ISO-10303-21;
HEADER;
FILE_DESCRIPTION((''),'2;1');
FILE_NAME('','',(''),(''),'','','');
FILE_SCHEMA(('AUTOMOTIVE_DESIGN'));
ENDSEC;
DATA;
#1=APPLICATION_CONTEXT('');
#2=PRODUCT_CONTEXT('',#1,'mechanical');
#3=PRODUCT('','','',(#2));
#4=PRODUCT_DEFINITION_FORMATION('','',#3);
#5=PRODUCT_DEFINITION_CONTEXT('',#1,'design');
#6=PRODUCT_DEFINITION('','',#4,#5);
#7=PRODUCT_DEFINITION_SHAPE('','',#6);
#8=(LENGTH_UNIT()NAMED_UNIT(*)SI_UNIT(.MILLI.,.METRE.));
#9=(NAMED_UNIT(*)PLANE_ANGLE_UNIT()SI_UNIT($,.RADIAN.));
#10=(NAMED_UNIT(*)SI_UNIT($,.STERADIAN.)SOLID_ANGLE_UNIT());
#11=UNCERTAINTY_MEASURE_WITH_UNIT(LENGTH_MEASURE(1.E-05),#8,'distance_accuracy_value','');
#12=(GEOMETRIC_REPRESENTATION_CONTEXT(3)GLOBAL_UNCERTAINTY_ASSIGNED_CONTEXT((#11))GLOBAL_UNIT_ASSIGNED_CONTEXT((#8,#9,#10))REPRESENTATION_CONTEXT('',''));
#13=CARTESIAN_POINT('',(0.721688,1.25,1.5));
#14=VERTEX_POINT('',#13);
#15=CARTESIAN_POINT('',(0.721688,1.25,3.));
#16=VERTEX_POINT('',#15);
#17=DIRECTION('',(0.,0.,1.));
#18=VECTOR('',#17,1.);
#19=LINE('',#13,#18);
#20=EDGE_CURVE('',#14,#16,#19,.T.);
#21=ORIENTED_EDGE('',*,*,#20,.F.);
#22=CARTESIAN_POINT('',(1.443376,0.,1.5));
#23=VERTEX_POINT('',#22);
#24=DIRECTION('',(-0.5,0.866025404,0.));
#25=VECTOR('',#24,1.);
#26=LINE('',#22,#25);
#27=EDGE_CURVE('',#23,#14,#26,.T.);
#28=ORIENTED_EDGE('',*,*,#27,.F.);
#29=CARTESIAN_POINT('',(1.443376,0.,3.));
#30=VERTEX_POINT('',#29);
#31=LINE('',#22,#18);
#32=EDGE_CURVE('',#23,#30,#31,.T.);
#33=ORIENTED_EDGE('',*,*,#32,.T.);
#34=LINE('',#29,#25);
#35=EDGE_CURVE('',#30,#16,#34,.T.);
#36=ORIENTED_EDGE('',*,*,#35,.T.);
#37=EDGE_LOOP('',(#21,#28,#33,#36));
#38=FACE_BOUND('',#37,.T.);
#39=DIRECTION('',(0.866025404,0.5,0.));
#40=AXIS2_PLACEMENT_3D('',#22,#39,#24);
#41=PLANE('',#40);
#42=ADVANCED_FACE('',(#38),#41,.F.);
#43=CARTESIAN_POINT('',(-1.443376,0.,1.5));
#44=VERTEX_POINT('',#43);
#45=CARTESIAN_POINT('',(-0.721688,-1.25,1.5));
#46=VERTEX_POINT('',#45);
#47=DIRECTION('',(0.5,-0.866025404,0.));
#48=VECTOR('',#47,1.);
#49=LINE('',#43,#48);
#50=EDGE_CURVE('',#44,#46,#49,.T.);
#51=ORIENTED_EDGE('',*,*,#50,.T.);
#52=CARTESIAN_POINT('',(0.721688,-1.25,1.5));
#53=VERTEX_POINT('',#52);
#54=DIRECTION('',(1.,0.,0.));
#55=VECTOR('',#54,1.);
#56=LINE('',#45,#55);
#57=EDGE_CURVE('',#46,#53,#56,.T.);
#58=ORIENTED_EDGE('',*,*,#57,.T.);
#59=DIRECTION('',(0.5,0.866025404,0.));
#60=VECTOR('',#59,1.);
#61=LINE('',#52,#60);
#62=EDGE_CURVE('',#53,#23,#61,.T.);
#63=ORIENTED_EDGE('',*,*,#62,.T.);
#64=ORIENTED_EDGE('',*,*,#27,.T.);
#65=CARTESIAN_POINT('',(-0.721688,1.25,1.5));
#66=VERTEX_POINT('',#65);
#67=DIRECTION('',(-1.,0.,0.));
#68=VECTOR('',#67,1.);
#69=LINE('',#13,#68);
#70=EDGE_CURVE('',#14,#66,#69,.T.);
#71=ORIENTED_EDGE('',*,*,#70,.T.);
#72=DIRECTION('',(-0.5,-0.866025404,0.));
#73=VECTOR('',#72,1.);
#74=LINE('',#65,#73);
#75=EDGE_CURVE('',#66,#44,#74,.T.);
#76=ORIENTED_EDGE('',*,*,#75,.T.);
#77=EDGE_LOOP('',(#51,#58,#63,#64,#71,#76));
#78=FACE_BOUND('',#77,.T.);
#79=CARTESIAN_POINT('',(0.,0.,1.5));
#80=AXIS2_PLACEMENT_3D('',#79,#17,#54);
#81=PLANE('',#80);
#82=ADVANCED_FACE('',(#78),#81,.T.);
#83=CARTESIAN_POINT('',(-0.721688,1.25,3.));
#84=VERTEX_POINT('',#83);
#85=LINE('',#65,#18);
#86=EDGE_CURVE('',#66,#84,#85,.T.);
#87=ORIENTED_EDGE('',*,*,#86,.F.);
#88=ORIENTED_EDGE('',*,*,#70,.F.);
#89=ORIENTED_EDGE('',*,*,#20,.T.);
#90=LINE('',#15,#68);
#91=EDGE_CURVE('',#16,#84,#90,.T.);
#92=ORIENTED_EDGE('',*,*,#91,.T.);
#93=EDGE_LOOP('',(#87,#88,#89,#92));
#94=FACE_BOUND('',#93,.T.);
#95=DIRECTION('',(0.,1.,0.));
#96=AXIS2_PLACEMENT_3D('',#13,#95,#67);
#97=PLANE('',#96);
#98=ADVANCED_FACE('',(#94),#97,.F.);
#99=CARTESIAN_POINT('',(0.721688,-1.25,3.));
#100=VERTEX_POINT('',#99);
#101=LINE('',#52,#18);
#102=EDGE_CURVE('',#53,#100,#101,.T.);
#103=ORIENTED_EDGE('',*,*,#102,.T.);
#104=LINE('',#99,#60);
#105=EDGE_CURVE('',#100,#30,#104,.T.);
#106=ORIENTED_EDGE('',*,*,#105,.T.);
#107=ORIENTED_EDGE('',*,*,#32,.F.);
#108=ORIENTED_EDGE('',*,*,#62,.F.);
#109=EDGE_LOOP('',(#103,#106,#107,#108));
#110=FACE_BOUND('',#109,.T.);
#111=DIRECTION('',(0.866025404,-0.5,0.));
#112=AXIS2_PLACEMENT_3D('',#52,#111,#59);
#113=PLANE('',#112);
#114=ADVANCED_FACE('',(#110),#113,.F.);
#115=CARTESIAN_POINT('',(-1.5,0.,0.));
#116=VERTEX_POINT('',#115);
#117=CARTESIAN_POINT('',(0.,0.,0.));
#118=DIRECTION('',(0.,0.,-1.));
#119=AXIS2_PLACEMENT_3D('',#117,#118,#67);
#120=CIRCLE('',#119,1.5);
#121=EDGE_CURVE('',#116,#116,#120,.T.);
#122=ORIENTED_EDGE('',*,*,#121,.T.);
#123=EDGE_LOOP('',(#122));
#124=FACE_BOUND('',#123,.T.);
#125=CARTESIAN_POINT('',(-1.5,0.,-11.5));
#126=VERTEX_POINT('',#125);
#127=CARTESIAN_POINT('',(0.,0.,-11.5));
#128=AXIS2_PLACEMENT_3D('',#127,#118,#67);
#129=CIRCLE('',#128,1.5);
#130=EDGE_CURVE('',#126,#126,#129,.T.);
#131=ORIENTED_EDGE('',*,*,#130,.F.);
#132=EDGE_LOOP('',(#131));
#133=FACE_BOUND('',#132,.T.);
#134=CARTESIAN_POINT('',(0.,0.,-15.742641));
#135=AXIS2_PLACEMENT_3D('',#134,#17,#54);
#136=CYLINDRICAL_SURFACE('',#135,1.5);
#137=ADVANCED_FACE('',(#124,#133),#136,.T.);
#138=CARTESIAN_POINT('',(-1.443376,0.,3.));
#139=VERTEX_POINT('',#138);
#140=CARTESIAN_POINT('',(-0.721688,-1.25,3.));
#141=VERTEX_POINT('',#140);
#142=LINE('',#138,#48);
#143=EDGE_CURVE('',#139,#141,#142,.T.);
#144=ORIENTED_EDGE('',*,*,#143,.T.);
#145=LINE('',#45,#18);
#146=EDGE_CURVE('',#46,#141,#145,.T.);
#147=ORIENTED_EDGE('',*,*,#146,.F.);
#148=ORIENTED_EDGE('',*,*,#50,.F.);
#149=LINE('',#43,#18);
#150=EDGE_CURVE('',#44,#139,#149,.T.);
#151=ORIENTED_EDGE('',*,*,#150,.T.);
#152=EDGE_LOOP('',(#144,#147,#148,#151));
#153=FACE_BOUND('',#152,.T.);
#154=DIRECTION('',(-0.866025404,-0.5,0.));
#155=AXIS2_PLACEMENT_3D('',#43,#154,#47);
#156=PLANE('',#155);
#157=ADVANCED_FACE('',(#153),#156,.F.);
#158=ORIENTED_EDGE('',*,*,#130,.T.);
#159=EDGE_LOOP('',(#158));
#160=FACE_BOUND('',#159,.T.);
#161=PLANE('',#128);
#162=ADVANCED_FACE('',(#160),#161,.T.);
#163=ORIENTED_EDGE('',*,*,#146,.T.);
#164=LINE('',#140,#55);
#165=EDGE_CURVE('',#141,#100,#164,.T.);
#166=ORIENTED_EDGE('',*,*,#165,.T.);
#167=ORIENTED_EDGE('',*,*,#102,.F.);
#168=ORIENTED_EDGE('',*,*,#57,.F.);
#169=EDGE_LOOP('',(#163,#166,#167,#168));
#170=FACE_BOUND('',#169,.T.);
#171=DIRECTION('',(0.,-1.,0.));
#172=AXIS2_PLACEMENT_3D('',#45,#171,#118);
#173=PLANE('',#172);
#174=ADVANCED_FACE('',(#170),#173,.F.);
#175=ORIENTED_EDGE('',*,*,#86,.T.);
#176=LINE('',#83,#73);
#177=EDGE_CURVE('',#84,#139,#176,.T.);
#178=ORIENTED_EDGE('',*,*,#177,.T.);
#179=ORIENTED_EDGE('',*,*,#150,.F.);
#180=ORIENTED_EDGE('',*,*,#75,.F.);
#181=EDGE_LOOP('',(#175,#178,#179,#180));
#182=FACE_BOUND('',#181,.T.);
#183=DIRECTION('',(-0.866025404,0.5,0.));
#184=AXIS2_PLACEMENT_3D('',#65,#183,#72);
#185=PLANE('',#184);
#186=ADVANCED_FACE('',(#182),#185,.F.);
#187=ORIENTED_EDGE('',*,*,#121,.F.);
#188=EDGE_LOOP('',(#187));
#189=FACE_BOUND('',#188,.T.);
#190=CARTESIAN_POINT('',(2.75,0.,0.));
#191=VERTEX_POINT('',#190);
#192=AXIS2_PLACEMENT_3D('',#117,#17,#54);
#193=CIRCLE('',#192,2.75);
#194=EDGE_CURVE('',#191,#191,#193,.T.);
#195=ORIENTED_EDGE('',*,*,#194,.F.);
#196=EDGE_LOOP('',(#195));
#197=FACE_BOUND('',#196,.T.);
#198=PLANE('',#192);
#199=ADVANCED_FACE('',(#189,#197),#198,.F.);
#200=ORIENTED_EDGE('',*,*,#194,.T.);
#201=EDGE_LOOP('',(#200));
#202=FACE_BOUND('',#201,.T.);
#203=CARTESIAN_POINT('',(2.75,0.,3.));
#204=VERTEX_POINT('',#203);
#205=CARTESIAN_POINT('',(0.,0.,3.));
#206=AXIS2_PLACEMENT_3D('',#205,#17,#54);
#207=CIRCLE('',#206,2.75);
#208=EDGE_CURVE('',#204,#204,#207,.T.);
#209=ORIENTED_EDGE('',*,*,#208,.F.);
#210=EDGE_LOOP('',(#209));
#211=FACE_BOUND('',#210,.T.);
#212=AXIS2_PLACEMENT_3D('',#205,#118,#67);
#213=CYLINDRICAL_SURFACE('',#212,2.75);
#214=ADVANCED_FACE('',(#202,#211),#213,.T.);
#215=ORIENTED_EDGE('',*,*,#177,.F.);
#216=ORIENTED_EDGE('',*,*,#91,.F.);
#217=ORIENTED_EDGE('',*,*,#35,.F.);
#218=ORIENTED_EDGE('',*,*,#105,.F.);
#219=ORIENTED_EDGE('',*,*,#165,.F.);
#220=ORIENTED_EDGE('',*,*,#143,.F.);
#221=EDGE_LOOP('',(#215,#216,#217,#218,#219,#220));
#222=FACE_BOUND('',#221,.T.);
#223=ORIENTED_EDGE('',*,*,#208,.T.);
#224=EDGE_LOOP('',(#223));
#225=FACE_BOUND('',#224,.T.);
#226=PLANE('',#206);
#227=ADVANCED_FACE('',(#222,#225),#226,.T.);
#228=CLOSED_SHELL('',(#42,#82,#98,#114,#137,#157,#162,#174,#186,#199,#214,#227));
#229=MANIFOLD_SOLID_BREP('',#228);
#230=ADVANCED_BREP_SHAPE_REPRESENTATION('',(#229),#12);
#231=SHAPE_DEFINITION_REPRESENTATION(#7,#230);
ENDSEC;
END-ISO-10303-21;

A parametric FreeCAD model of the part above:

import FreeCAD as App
import Part
import Sketcher

V = App.Vector
Q = App.Units.Quantity


def add_polygon(sketch, points):
    """Adds a closed chain of lines whose ends are joined by coincident constraints."""
    first, n = sketch.GeometryCount, len(points)
    for a, b in zip(points, points[1:] + points[:1]):
        sketch.addGeometry(Part.LineSegment(App.Vector(*a, 0), App.Vector(*b, 0)), False)
    for i in range(n):
        sketch.addConstraint(Sketcher.Constraint("Coincident", first + i, 2, first + (i + 1) % n, 1))

doc = App.newDocument("Part")
params = doc.addObject("Spreadsheet::Sheet", "Params")
for row, (alias, value) in enumerate([
    ("sketch1_diameter", "5.5 mm"),
    ("pad1_length", "3 mm"),
    ("sketch2_diameter", "3 mm"),
    ("pad2_length", "11.5 mm"),
    ("pocket1_length", "1.5 mm"),
], start=1):
    params.set(f"A{row}", alias)
    params.set(f"B{row}", "=" + value)
    params.setAlias(f"B{row}", alias)

body = doc.addObject("PartDesign::Body", "Body")

sketch1 = body.newObject("Sketcher::SketchObject", "Sketch")
sketch1.AttachmentSupport = (doc.getObject("XY_Plane"), [""])
sketch1.MapMode = "FlatFace"
sketch1.addGeometry(Part.Circle(V(0, 0, 0), V(0, 0, 1), 2.8), False)
sketch1.addConstraint([
    Sketcher.Constraint("Coincident", 0, 3, -1, 1),
    Sketcher.Constraint("Diameter", 0, Q("5.5 mm")),
])
sketch1.setExpression("Constraints[1]", "Params.sketch1_diameter")
pad1 = body.newObject("PartDesign::Pad", "Pad")
pad1.Profile = sketch1
pad1.setExpression("Length", "Params.pad1_length")

sketch2 = body.newObject("Sketcher::SketchObject", "Sketch001")
sketch2.AttachmentSupport = (doc.getObject("XY_Plane"), [""])
sketch2.MapMode = "FlatFace"
sketch2.addGeometry(Part.Circle(V(0, 0, 0), V(0, 0, 1), 1.5), False)
sketch2.addConstraint([
    Sketcher.Constraint("Coincident", 0, 3, -1, 1),
    Sketcher.Constraint("Diameter", 0, Q("3 mm")),
])
sketch2.setExpression("Constraints[1]", "Params.sketch2_diameter")
pad2 = body.newObject("PartDesign::Pad", "Pad001")
pad2.Profile = sketch2
pad2.setExpression("Length", "Params.pad2_length")
pad2.Reversed = True

sketch3 = body.newObject("Sketcher::SketchObject", "Sketch002")
sketch3.AttachmentSupport = (doc.getObject("XY_Plane"), [""])
sketch3.MapMode = "FlatFace"
sketch3.AttachmentOffset = App.Placement(V(0, 0, 3), App.Rotation())
add_polygon(sketch3, [(1.4, 0), (0.7, 1.2), (-0.7, 1.2), (-1.4, 0), (-0.7, -1.2), (0.7, -1.2)])
sketch3.addConstraint([
    Sketcher.Constraint("Horizontal", 1),
    Sketcher.Constraint("Horizontal", 4),
    Sketcher.Constraint("Symmetric", 0, 2, 3, 2, -1, 1),
    Sketcher.Constraint("Symmetric", 2, 2, 5, 2, -1, 1),
    Sketcher.Constraint("PointOnObject", 2, 2, -1),
    Sketcher.Constraint("Parallel", 2, 5),
    Sketcher.Constraint("Vertical", 1, 2, 3, 2),
    Sketcher.Constraint("Angle", 0, Q("120 deg")),
    Sketcher.Constraint("DistanceY", 3, 2, 1, 2, Q("2.5 mm")),
    Sketcher.Constraint("DistanceX", 1, 2, 1, 1, Q("1.443376 mm")),
])
pocket1 = body.newObject("PartDesign::Pocket", "Pocket")
pocket1.Profile = sketch3
pocket1.setExpression("Length", "Params.pocket1_length")

doc.recompute()
